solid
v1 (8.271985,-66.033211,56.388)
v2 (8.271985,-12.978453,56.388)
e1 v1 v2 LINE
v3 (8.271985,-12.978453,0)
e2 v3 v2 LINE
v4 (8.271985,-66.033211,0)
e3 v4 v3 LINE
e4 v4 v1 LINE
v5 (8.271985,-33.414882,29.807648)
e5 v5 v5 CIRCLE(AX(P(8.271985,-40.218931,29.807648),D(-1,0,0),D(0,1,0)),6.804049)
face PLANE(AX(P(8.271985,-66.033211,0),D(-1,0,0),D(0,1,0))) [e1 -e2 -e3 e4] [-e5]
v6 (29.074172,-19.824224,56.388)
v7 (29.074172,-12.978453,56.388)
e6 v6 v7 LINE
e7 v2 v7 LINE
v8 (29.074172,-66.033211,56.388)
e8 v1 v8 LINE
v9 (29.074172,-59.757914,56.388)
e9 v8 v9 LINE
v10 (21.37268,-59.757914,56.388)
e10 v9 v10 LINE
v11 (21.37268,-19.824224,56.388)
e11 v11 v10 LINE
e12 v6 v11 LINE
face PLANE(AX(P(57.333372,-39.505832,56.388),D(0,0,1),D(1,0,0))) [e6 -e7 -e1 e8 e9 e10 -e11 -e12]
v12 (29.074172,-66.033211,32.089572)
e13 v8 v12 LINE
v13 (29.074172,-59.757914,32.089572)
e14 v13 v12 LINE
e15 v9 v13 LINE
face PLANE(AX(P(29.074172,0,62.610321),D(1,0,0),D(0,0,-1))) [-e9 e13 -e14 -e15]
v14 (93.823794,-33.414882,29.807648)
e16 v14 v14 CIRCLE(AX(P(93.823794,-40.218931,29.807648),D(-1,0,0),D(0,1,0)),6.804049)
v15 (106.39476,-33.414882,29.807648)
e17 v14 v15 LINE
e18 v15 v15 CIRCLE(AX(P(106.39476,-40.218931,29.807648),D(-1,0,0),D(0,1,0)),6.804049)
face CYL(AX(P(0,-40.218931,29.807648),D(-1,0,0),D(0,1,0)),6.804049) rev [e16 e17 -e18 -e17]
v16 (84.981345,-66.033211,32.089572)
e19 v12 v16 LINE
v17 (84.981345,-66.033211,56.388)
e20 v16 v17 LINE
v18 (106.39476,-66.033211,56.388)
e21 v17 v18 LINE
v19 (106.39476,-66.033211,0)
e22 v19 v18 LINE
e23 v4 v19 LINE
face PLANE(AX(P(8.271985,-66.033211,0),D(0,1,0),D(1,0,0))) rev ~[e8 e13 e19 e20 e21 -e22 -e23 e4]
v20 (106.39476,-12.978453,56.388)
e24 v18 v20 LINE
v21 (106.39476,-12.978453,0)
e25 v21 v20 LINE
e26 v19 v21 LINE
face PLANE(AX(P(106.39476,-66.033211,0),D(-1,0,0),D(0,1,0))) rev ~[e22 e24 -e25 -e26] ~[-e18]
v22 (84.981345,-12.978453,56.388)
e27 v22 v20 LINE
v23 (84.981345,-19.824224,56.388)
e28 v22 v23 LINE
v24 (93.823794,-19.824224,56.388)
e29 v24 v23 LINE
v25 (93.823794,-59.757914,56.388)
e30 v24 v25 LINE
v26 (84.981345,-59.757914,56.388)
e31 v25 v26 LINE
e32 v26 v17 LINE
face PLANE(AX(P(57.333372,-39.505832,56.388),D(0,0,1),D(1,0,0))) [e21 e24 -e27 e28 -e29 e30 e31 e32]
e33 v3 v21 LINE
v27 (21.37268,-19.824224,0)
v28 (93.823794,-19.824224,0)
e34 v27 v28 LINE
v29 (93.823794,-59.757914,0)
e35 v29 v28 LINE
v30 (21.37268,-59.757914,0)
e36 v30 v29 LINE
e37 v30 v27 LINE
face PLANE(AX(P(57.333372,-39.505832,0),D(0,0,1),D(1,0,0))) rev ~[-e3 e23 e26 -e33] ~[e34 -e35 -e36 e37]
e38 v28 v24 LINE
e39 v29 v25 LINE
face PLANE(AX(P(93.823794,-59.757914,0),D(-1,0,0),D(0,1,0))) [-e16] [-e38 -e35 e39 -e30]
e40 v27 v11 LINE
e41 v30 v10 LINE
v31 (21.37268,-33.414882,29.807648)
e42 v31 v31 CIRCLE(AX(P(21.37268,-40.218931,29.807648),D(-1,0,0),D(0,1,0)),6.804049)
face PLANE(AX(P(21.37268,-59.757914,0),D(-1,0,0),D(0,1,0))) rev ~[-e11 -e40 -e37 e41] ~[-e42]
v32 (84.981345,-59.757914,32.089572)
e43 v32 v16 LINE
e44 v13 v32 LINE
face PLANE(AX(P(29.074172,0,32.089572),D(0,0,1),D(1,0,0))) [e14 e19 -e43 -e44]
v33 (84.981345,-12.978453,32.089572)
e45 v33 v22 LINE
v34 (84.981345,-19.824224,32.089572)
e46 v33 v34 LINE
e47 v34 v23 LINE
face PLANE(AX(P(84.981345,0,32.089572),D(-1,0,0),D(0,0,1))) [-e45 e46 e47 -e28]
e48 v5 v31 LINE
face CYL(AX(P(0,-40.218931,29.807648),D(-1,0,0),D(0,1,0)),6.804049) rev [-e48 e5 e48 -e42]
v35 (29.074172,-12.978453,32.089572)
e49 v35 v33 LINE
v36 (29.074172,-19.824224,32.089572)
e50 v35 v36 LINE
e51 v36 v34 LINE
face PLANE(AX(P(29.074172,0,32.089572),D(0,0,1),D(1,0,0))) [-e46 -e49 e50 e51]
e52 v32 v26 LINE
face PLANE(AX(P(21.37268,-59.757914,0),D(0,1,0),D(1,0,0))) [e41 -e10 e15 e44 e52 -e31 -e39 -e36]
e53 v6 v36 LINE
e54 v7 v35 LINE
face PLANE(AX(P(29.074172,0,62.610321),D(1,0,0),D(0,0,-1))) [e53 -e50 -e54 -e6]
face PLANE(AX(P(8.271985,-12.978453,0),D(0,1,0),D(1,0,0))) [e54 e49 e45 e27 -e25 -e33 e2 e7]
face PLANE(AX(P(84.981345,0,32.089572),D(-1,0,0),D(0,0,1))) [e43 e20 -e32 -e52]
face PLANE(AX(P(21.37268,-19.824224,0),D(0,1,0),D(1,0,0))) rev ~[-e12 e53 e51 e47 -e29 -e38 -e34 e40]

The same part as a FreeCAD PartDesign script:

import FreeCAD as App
import Part
import Sketcher
Q = App.Units.Quantity


def add_polygon(sketch, points):
    """Adds a closed chain of lines whose ends are joined by coincident constraints."""
    first, n = sketch.GeometryCount, len(points)
    for a, b in zip(points, points[1:] + points[:1]):
        sketch.addGeometry(Part.LineSegment(App.Vector(*a, 0), App.Vector(*b, 0)), False)
    for i in range(n):
        sketch.addConstraint(Sketcher.Constraint("Coincident", first + i, 2, first + (i + 1) % n, 1))

doc = App.newDocument("Part")
body = doc.addObject("PartDesign::Body", "Body")

# Sketch on XY plane
sketch1 = body.newObject("Sketcher::SketchObject", "Sketch")
sketch1.AttachmentSupport = (doc.getObject("XY_Plane"), [""])
sketch1.MapMode = "FlatFace"
add_polygon(sketch1, [(8.271985, -12.978453), (8.271985, -66.033211), (106.39476, -66.033211), (106.39476, -12.978453)])  # lines 0-3
sketch1.addConstraint(Sketcher.Constraint("Vertical", 0))
sketch1.addConstraint(Sketcher.Constraint("Horizontal", 1))
sketch1.addConstraint(Sketcher.Constraint("Vertical", 2))
sketch1.addConstraint(Sketcher.Constraint("Horizontal", 3))
sketch1.addConstraint(Sketcher.Constraint("DistanceX", 1, 1, 1, 2, Q("98.122775 mm")))
sketch1.addConstraint(Sketcher.Constraint("DistanceY", 0, 2, 0, 1, Q("53.054758 mm")))
sketch1.addConstraint(Sketcher.Constraint("DistanceY", 0, 2, -1, 1, Q("66.033211 mm")))
sketch1.addConstraint(Sketcher.Constraint("DistanceX", -1, 1, 1, 2, Q("106.39476 mm")))
pad1 = body.newObject("PartDesign::Pad", "Pad")
pad1.Profile = sketch1
pad1.Length = Q("2.22 in")

# Sketch on XY plane
sketch2 = body.newObject("Sketcher::SketchObject", "Sketch001")
sketch2.AttachmentSupport = (doc.getObject("XY_Plane"), [""])
sketch2.MapMode = "FlatFace"
add_polygon(sketch2, [(21.37268, -19.824224), (21.37268, -59.757914), (93.823794, -59.757914), (93.823794, -19.824224)])  # lines 0-3
sketch2.addConstraint(Sketcher.Constraint("Vertical", 0))
sketch2.addConstraint(Sketcher.Constraint("Horizontal", 1))
sketch2.addConstraint(Sketcher.Constraint("Vertical", 2))
sketch2.addConstraint(Sketcher.Constraint("Horizontal", 3))
sketch2.addConstraint(Sketcher.Constraint("DistanceY", 0, 2, 0, 1, Q("39.933689 mm")))
sketch2.addConstraint(Sketcher.Constraint("DistanceX", 1, 1, 1, 2, Q("72.451114 mm")))
sketch2.addConstraint(Sketcher.Constraint("DistanceX", -1, 1, 0, 2, Q("21.37268 mm")))
sketch2.addConstraint(Sketcher.Constraint("DistanceY", 0, 2, -1, 1, Q("59.757914 mm")))
pocket1 = body.newObject("PartDesign::Pocket", "Pocket")
pocket1.Profile = sketch2
pocket1.Type = "ThroughAll"
pocket1.Reversed = True

# Sketch on YZ plane
sketch3 = body.newObject("Sketcher::SketchObject", "Sketch002")
sketch3.AttachmentSupport = (doc.getObject("YZ_Plane"), [""])
sketch3.MapMode = "FlatFace"
sketch3.addGeometry(Part.Circle(App.Vector(-40.218931, 29.807648, 0), App.Vector(0, 0, 1), 6.804049), False)
sketch3.addConstraint(Sketcher.Constraint("Diameter", 0, Q("13.608098 mm")))
sketch3.addConstraint(Sketcher.Constraint("DistanceX", 0, 3, -1, 1, Q("40.218931 mm")))
sketch3.addConstraint(Sketcher.Constraint("DistanceY", -1, 1, 0, 3, Q("29.807648 mm")))
pocket2 = body.newObject("PartDesign::Pocket", "Pocket001")
pocket2.Profile = sketch3
pocket2.Type = "ThroughAll"
pocket2.Reversed = True

# Sketch on XZ plane
sketch4 = body.newObject("Sketcher::SketchObject", "Sketch003")
sketch4.AttachmentSupport = (doc.getObject("XZ_Plane"), [""])
sketch4.MapMode = "FlatFace"
add_polygon(sketch4, [(84.981345, 64.892247), (40.198553, 62.610321), (29.074172, 62.610321), (29.074172, 32.089572), (84.981345, 32.089572)])  # lines 0-4
sketch4.addConstraint(Sketcher.Constraint("Horizontal", 1))
sketch4.addConstraint(Sketcher.Constraint("Vertical", 2))
sketch4.addConstraint(Sketcher.Constraint("Horizontal", 3))
sketch4.addConstraint(Sketcher.Constraint("Vertical", 4))
sketch4.addConstraint(Sketcher.Constraint("DistanceX", 1, 2, 1, 1, Q("11.124381 mm")))
sketch4.addConstraint(Sketcher.Constraint("DistanceY", 2, 2, 2, 1, Q("30.520749 mm")))
sketch4.addConstraint(Sketcher.Constraint("DistanceX", 3, 1, 3, 2, Q("55.907173 mm")))
sketch4.addConstraint(Sketcher.Constraint("DistanceY", 4, 1, 4, 2, Q("32.802675 mm")))
sketch4.addConstraint(Sketcher.Constraint("DistanceY", -1, 1, 0, 2, Q("62.610321 mm")))
sketch4.addConstraint(Sketcher.Constraint("DistanceX", -1, 1, 0, 2, Q("40.198553 mm")))
pocket3 = body.newObject("PartDesign::Pocket", "Pocket002")
pocket3.Profile = sketch4
pocket3.Length = Q("4 in")
pocket3.Reversed = True

doc.recompute()
